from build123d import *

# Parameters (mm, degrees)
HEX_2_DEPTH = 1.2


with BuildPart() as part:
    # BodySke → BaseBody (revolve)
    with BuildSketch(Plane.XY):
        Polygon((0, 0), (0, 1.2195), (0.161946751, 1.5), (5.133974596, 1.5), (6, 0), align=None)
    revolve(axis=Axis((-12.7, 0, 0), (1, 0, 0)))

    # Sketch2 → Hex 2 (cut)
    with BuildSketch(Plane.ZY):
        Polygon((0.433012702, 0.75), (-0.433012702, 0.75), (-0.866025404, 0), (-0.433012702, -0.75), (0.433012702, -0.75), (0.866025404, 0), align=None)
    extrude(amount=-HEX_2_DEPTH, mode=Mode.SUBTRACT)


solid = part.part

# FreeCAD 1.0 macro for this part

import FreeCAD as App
import Part
import Sketcher
from FreeCAD import Vector
Q = App.Units.Quantity


def add_polygon(sketch, points):
    """Adds a closed chain of lines whose ends are joined by coincident constraints."""
    first, n = sketch.GeometryCount, len(points)
    for a, b in zip(points, points[1:] + points[:1]):
        sketch.addGeometry(Part.LineSegment(App.Vector(*a, 0), App.Vector(*b, 0)), False)
    for i in range(n):
        sketch.addConstraint(Sketcher.Constraint("Coincident", first + i, 2, first + (i + 1) % n, 1))

doc = App.newDocument("Part")
body = doc.addObject("PartDesign::Body", "Body")

# Sketch on XY plane
sketch1 = doc.addObject("Sketcher::SketchObject", "Sketch")
body.addObject(sketch1)
sketch1.AttachmentSupport = (doc.XY_Plane, [""])
sketch1.MapMode = "FlatFace"
add_polygon(sketch1, [(0, 1.22), (0, 0), (6, 0), (5.13, 1.5), (0.16, 1.5)])  # lines 0-4
sketch1.addConstraint([
    Sketcher.Constraint("Vertical", 0),
    Sketcher.Constraint("Horizontal", 1),
    Sketcher.Constraint("Horizontal", 3),
    Sketcher.Constraint("Coincident", 0, 2, -1, 1),
    Sketcher.Constraint("DistanceX", 1, 1, 1, 2, 6.0),
    Sketcher.Constraint("Angle", 2, Q("120 deg")),
    Sketcher.Constraint("Angle", 4, Q("-120 deg")),
    Sketcher.Constraint("DistanceY", -1, 1, 2, 2, 1.5),
    Sketcher.Constraint("DistanceY", 0, 2, 0, 1, 1.2195),
])
revolution = doc.addObject("PartDesign::Revolution", "Revolution")
body.addObject(revolution)
revolution.Profile = sketch1
revolution.ReferenceAxis = (sketch1, ["H_Axis"])
revolution.Angle = 360

# Sketch on YZ plane
sketch2 = doc.addObject("Sketcher::SketchObject", "Sketch001")
body.addObject(sketch2)
sketch2.AttachmentSupport = (doc.YZ_Plane, [""])
sketch2.MapMode = "FlatFace"
add_polygon(sketch2, [(0.8, 0.4), (0.8, -0.4), (0, -0.9), (-0.8, -0.4), (-0.8, 0.4), (0, 0.9)])  # lines 0-5
sketch2.addConstraint([
    Sketcher.Constraint("Vertical", 0),
    Sketcher.Constraint("Vertical", 3),
    Sketcher.Constraint("Symmetric", 0, 2, 3, 2, -1, 1),
    Sketcher.Constraint("Symmetric", 1, 2, 4, 2, -1, 1),
    Sketcher.Constraint("PointOnObject", 1, 2, -2),
    Sketcher.Constraint("Parallel", 2, 5),
    Sketcher.Constraint("Horizontal", 0, 2, 2, 2),
    Sketcher.Constraint("Angle", 1, Q("-150 deg")),
    Sketcher.Constraint("DistanceX", 2, 2, 0, 2, 1.5),
    Sketcher.Constraint("DistanceY", 0, 2, 0, 1, 0.866025),
])
pocket1 = doc.addObject("PartDesign::Pocket", "Pocket")
body.addObject(pocket1)
pocket1.Profile = sketch2
pocket1.Length = 1.2
pocket1.Reversed = True

doc.recompute()
